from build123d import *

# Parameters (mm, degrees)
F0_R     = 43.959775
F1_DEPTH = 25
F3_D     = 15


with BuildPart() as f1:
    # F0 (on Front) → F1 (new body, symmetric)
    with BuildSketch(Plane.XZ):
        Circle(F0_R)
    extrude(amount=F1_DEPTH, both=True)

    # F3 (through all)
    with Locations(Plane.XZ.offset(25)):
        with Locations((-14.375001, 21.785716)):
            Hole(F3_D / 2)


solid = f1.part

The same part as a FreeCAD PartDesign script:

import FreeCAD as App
import Part
import Sketcher

doc = App.newDocument("Part")
params = doc.addObject("Spreadsheet::Sheet", "Params")
for row, (alias, value) in enumerate([
    ("pad1_length", "50 mm"),
    ("sketch2_diameter", "15 mm"),
    ("hole_diameter", "15 mm"),
], start=1):
    params.set(f"A{row}", alias)
    params.set(f"B{row}", "=" + value)
    params.setAlias(f"B{row}", alias)

body = doc.addObject("PartDesign::Body", "Body")

# Sketch on XZ plane
sketch1 = body.newObject("Sketcher::SketchObject", "Sketch")
sketch1.AttachmentSupport = (doc.getObject("XZ_Plane"), [""])
sketch1.MapMode = "FlatFace"
sketch1.addGeometry(Part.Circle(App.Vector(0, 0, 0), App.Vector(0, 0, 1), 44), False)
sketch1.addConstraint(Sketcher.Constraint("Coincident", 0, 3, -1, 1))
sketch1.addConstraint(Sketcher.Constraint("Diameter", 0, 87.91955))
pad1 = body.newObject("PartDesign::Pad", "Pad")
pad1.Profile = sketch1
pad1.setExpression("Length", "Params.pad1_length")
pad1.Midplane = True

# Sketch on XZ plane
sketch2 = body.newObject("Sketcher::SketchObject", "Sketch001")
sketch2.AttachmentSupport = (doc.getObject("XZ_Plane"), [""])
sketch2.MapMode = "FlatFace"
sketch2.AttachmentOffset = App.Placement(App.Vector(0, 0, 25), App.Rotation())
sketch2.addGeometry(Part.Circle(App.Vector(-14, 22, 0), App.Vector(0, 0, 1), 8), False)
sketch2.addConstraint(Sketcher.Constraint("Diameter", 0, 15.0))
sketch2.addConstraint(Sketcher.Constraint("DistanceX", 0, 3, -1, 1, 14.375001))
sketch2.addConstraint(Sketcher.Constraint("DistanceY", -1, 1, 0, 3, 21.785716))
sketch2.setExpression("Constraints[0]", "Params.sketch2_diameter")
doc.recompute()
hole = body.newObject("PartDesign::Hole", "Hole")
hole.Profile = sketch2
hole.ThreadType = "None"
hole.setExpression("Diameter", "Params.hole_diameter")
hole.DepthType = "ThroughAll"

doc.recompute()
